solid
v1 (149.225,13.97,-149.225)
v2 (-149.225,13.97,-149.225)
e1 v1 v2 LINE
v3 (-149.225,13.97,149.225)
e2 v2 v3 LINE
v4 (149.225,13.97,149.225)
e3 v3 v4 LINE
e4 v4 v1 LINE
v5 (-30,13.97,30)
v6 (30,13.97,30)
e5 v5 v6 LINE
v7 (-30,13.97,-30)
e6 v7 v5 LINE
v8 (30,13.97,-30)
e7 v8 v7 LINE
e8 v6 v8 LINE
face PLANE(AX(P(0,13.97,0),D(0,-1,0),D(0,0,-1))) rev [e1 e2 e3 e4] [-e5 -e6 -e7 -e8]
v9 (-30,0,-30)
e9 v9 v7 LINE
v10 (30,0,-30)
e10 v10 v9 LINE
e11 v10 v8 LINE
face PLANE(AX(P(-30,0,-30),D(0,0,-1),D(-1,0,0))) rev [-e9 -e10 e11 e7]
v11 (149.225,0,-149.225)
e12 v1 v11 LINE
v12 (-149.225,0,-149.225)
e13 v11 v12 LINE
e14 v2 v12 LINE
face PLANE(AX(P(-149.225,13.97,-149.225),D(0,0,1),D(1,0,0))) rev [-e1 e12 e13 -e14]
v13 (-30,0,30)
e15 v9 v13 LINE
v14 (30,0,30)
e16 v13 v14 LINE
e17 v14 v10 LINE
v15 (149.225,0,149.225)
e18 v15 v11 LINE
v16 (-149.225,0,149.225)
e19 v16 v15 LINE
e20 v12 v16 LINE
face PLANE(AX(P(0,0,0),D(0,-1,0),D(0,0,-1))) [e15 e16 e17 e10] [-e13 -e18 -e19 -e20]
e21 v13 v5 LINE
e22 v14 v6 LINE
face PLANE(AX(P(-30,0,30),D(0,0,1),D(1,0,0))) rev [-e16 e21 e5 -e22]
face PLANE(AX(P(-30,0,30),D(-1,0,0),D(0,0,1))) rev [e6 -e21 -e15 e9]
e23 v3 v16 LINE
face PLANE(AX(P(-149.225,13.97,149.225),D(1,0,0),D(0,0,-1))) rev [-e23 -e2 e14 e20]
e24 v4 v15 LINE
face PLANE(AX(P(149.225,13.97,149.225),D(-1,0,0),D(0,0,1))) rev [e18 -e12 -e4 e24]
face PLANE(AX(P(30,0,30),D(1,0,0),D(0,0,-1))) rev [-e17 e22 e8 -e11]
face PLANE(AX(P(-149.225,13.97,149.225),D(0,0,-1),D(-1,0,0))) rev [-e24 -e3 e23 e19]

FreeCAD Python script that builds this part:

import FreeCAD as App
import Part
import Sketcher
Q = App.Units.Quantity

doc = App.newDocument("Part")
body = doc.addObject("PartDesign::Body", "Body")

# Sketch on XZ plane
sketch1 = body.newObject("Sketcher::SketchObject", "Sketch")
sketch1.AttachmentSupport = (doc.getObject("XZ_Plane"), [""])
sketch1.MapMode = "FlatFace"
sketch1.addGeometry(Part.LineSegment(App.Vector(-149.225, -149.225, 0), App.Vector(-149.225, 149.225, 0)), False)
sketch1.addGeometry(Part.LineSegment(App.Vector(-149.225, 149.225, 0), App.Vector(149.225, 149.225, 0)), False)
sketch1.addGeometry(Part.LineSegment(App.Vector(149.225, 149.225, 0), App.Vector(149.225, -149.225, 0)), False)
sketch1.addGeometry(Part.LineSegment(App.Vector(149.225, -149.225, 0), App.Vector(-149.225, -149.225, 0)), False)
sketch1.addConstraint(Sketcher.Constraint("Coincident", 0, 2, 1, 1))
sketch1.addConstraint(Sketcher.Constraint("Coincident", 1, 2, 2, 1))
sketch1.addConstraint(Sketcher.Constraint("Coincident", 2, 2, 3, 1))
sketch1.addConstraint(Sketcher.Constraint("Coincident", 3, 2, 0, 1))
sketch1.addConstraint(Sketcher.Constraint("Vertical", 0))
sketch1.addConstraint(Sketcher.Constraint("Horizontal", 1))
sketch1.addConstraint(Sketcher.Constraint("Vertical", 2))
sketch1.addConstraint(Sketcher.Constraint("Horizontal", 3))
sketch1.addConstraint(Sketcher.Constraint("Symmetric", 0, 2, 2, 2, -1, 1))
sketch1.addConstraint(Sketcher.Constraint("Equal", 3, 0))
sketch1.addConstraint(Sketcher.Constraint("DistanceX", 1, 1, 1, 2, Q("11.75 in")))
pad1 = body.newObject("PartDesign::Pad", "Pad")
pad1.Profile = sketch1
pad1.Length = Q("0.55 in")
pad1.Reversed = True

# Sketch on XZ plane
sketch2 = body.newObject("Sketcher::SketchObject", "Sketch001")
sketch2.AttachmentSupport = (doc.getObject("XZ_Plane"), [""])
sketch2.MapMode = "FlatFace"
sketch2.AttachmentOffset = App.Placement(App.Vector(0, 0, -0.55 * 25.4), App.Rotation())
sketch2.addGeometry(Part.LineSegment(App.Vector(-30, -30, 0), App.Vector(-30, 30, 0)), False)
sketch2.addGeometry(Part.LineSegment(App.Vector(-30, 30, 0), App.Vector(30, 30, 0)), False)
sketch2.addGeometry(Part.LineSegment(App.Vector(30, 30, 0), App.Vector(30, -30, 0)), False)
sketch2.addGeometry(Part.LineSegment(App.Vector(30, -30, 0), App.Vector(-30, -30, 0)), False)
sketch2.addConstraint(Sketcher.Constraint("Coincident", 0, 2, 1, 1))
sketch2.addConstraint(Sketcher.Constraint("Coincident", 1, 2, 2, 1))
sketch2.addConstraint(Sketcher.Constraint("Coincident", 2, 2, 3, 1))
sketch2.addConstraint(Sketcher.Constraint("Coincident", 3, 2, 0, 1))
sketch2.addConstraint(Sketcher.Constraint("Vertical", 0))
sketch2.addConstraint(Sketcher.Constraint("Horizontal", 1))
sketch2.addConstraint(Sketcher.Constraint("Vertical", 2))
sketch2.addConstraint(Sketcher.Constraint("Horizontal", 3))
sketch2.addConstraint(Sketcher.Constraint("Symmetric", 0, 2, 2, 2, -1, 1))
sketch2.addConstraint(Sketcher.Constraint("Equal", 3, 0))
sketch2.addConstraint(Sketcher.Constraint("DistanceX", 1, 1, 1, 2, 60.0))
pocket1 = body.newObject("PartDesign::Pocket", "Pocket")
pocket1.Profile = sketch2
pocket1.Type = "ThroughAll"
pocket1.Reversed = True

doc.recompute()
